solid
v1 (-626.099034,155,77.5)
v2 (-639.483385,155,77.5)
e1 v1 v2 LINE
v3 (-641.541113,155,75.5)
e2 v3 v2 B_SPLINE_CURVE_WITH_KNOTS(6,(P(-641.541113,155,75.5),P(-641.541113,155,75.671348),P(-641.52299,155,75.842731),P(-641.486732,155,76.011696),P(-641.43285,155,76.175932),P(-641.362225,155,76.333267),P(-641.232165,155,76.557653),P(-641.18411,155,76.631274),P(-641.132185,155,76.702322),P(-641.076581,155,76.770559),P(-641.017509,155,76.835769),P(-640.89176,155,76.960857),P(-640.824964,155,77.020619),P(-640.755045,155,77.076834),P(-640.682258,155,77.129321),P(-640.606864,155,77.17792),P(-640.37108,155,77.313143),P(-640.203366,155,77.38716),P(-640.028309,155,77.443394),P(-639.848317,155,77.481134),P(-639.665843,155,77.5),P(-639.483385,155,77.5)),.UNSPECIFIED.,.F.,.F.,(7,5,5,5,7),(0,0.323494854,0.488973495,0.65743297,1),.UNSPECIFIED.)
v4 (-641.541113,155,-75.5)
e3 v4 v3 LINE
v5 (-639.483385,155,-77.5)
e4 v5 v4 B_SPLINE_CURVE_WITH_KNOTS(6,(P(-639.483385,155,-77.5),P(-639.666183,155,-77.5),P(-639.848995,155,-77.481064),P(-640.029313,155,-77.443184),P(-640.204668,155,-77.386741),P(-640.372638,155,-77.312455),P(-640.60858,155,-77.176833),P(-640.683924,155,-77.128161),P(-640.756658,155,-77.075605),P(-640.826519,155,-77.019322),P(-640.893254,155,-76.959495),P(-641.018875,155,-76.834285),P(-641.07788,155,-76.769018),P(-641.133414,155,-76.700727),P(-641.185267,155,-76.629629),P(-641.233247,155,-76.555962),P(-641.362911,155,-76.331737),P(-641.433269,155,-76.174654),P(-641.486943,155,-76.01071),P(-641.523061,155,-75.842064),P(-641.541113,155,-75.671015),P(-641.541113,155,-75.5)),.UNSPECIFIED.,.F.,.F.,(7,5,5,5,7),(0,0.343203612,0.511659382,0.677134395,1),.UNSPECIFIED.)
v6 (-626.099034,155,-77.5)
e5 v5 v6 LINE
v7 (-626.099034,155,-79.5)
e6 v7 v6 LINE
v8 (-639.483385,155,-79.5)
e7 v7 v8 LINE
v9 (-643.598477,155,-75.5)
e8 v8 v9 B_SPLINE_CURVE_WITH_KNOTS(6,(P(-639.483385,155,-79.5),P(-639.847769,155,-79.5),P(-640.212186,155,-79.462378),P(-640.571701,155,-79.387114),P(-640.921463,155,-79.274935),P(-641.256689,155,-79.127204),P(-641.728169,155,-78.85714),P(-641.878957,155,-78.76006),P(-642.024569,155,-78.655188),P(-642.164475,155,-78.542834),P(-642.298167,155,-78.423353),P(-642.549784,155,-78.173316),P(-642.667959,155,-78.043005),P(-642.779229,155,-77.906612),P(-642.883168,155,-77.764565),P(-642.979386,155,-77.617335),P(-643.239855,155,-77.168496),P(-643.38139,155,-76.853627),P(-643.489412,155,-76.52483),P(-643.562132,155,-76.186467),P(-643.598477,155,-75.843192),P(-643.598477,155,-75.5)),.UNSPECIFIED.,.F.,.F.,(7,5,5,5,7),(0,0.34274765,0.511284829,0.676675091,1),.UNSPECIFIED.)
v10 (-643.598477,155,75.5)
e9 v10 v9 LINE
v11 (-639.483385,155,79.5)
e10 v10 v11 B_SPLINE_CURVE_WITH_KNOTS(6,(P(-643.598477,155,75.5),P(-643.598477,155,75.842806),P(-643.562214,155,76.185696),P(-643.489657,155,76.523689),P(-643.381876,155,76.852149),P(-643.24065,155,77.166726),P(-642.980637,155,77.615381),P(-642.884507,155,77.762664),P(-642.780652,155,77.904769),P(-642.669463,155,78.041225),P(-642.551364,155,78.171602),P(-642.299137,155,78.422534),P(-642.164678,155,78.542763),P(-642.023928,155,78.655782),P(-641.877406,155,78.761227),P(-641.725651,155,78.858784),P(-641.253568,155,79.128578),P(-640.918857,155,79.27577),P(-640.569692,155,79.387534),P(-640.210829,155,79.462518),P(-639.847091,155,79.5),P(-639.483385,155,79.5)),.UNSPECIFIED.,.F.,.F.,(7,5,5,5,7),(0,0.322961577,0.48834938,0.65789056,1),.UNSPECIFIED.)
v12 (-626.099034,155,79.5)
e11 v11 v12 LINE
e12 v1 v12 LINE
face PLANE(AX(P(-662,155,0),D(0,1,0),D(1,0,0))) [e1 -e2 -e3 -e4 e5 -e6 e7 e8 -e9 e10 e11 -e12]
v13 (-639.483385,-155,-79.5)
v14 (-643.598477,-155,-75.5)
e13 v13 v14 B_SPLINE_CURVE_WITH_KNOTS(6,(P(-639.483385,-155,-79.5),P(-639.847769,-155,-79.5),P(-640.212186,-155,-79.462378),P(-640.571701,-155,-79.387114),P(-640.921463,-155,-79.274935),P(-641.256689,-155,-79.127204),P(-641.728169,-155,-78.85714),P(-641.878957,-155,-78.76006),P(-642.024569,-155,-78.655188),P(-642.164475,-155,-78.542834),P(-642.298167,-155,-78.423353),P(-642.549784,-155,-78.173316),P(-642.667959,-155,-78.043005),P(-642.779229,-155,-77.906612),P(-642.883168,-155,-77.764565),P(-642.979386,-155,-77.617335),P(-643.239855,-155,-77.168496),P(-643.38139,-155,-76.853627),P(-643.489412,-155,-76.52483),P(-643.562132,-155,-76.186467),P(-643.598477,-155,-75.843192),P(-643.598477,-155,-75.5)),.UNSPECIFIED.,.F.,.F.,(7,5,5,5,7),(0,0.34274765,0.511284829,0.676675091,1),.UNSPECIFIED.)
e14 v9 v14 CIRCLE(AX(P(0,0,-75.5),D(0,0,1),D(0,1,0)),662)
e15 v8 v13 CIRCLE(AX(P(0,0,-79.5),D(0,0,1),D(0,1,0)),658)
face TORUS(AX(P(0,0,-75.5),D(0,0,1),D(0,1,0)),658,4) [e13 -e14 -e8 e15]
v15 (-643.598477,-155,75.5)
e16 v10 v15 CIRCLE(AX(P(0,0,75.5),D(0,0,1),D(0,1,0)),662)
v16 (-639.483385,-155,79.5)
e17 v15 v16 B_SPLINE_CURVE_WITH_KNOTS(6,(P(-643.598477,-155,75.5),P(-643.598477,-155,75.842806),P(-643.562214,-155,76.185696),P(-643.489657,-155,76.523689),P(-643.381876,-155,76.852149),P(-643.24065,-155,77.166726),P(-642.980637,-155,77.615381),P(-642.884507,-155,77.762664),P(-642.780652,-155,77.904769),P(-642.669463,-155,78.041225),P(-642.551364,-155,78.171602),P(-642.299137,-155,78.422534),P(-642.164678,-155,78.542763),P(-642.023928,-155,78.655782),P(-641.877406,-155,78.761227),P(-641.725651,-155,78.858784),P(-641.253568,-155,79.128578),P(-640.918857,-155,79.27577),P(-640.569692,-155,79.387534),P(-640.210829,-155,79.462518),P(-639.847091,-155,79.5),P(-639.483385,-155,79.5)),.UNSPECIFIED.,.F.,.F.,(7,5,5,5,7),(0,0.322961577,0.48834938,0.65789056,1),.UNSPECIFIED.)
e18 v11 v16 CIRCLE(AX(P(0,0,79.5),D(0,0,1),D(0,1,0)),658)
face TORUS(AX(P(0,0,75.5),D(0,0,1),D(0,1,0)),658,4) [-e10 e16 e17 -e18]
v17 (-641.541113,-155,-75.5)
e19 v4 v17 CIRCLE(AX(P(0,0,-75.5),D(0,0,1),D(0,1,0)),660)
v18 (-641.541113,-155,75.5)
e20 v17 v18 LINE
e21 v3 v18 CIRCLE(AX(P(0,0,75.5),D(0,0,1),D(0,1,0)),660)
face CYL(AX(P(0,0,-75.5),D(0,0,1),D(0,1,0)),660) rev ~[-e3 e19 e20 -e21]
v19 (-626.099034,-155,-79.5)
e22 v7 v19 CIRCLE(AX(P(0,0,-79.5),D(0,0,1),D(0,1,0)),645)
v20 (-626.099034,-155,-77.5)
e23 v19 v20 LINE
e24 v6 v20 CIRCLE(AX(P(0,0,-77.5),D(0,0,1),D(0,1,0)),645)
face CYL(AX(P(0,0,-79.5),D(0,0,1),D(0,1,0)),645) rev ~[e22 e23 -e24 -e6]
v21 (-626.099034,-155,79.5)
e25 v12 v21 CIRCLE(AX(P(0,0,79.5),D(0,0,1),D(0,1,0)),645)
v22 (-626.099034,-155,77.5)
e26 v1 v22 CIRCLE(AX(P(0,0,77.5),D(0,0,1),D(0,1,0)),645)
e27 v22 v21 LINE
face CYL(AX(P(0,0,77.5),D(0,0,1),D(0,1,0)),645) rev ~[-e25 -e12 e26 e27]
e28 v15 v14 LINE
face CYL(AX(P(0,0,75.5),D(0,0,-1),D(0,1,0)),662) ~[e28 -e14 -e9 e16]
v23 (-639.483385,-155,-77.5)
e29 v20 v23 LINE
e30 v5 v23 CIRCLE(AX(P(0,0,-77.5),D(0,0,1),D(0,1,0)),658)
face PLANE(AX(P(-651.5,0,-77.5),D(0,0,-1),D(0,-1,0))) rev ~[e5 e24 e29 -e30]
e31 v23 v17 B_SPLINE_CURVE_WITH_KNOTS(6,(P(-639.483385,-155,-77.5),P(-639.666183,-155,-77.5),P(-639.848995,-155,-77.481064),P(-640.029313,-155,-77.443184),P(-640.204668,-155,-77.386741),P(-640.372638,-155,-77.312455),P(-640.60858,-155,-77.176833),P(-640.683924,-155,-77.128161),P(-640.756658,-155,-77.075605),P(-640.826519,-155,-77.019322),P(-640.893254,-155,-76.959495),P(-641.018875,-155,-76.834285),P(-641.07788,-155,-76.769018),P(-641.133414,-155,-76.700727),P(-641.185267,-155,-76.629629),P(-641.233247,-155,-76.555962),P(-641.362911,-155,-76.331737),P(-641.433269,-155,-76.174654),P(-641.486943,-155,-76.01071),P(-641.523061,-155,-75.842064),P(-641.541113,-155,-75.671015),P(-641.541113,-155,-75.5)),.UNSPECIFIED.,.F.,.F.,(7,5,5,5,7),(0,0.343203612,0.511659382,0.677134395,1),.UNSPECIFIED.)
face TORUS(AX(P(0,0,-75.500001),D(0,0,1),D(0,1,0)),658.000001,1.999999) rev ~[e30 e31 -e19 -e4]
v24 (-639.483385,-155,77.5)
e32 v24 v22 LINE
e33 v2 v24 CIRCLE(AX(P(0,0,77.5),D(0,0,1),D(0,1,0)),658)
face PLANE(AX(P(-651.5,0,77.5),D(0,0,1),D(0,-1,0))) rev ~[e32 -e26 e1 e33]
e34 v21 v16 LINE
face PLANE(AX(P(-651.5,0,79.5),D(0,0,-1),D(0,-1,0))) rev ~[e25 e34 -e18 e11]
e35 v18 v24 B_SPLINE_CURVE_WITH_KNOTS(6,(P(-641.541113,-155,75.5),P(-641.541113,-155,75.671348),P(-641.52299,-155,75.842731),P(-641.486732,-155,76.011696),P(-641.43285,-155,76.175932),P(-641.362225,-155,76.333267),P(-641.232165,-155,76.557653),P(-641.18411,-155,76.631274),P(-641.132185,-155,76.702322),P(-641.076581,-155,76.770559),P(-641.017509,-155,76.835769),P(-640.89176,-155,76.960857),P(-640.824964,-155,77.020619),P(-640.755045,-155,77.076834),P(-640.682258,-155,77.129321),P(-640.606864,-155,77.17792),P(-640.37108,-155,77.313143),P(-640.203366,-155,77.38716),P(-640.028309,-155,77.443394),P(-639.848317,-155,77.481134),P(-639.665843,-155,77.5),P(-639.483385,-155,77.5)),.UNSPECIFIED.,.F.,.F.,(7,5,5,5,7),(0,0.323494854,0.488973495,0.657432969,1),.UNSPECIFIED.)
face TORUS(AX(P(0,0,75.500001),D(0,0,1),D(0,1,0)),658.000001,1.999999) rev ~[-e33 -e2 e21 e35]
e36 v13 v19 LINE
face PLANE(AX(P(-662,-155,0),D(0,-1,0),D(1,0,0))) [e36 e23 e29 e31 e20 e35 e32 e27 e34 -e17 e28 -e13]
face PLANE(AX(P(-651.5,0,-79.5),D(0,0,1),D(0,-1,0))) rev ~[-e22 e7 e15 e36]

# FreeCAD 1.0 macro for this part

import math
import FreeCAD as App
import Part
import Sketcher
from FreeCAD import Vector
Q = App.Units.Quantity

doc = App.newDocument("Part")
body = doc.addObject("PartDesign::Body", "Body")

# Sketch on YZ plane
sketch1 = body.newObject("Sketcher::SketchObject", "Sketch")
sketch1.AttachmentSupport = (doc.getObject("YZ_Plane"), [""])
sketch1.MapMode = "FlatFace"
sketch1.addGeometry(Part.LineSegment(Vector(-658, 77.5, 0), Vector(-645, 77.5, 0)), False)
sketch1.addGeometry(Part.LineSegment(Vector(-645, 77.5, 0), Vector(-645, 79.5, 0)), False)
sketch1.addGeometry(Part.LineSegment(Vector(-645, 79.5, 0), Vector(-658, 79.5, 0)), False)
sketch1.addGeometry(Part.ArcOfCircle(Part.Circle(Vector(-658, 75.5, 0), Vector(0, 0, 1), 4), math.radians(90), math.radians(180)), False)
sketch1.addGeometry(Part.LineSegment(Vector(-662, 75.5, 0), Vector(-662, -75.5, 0)), False)
sketch1.addGeometry(Part.ArcOfCircle(Part.Circle(Vector(-658, -75.5, 0), Vector(0, 0, 1), 4), math.radians(-180), math.radians(-90)), False)
sketch1.addGeometry(Part.LineSegment(Vector(-658, -79.5, 0), Vector(-645, -79.5, 0)), False)
sketch1.addGeometry(Part.LineSegment(Vector(-645, -79.5, 0), Vector(-645, -77.5, 0)), False)
sketch1.addGeometry(Part.LineSegment(Vector(-645, -77.5, 0), Vector(-658, -77.5, 0)), False)
sketch1.addGeometry(Part.ArcOfCircle(Part.Circle(Vector(-658, -75.5, 0), Vector(0, 0, 1), 2), math.radians(180), math.radians(270)), False)
sketch1.addGeometry(Part.LineSegment(Vector(-660, -75.5, 0), Vector(-660, 75.5, 0)), False)
sketch1.addGeometry(Part.ArcOfCircle(Part.Circle(Vector(-658, 75.5, 0), Vector(0, 0, 1), 2), math.radians(90), math.radians(180)), False)
sketch1.addConstraint(Sketcher.Constraint("Coincident", 0, 2, 1, 1))
sketch1.addConstraint(Sketcher.Constraint("Coincident", 1, 2, 2, 1))
sketch1.addConstraint(Sketcher.Constraint("Tangent", 2, 2, 3, 1))
sketch1.addConstraint(Sketcher.Constraint("Tangent", 3, 2, 4, 1))
sketch1.addConstraint(Sketcher.Constraint("Tangent", 4, 2, 5, 1))
sketch1.addConstraint(Sketcher.Constraint("Tangent", 5, 2, 6, 1))
sketch1.addConstraint(Sketcher.Constraint("Coincident", 6, 2, 7, 1))
sketch1.addConstraint(Sketcher.Constraint("Coincident", 7, 2, 8, 1))
sketch1.addConstraint(Sketcher.Constraint("Tangent", 8, 2, 9, 2))
sketch1.addConstraint(Sketcher.Constraint("Tangent", 9, 1, 10, 1))
sketch1.addConstraint(Sketcher.Constraint("Tangent", 10, 2, 11, 2))
sketch1.addConstraint(Sketcher.Constraint("Tangent", 11, 1, 0, 1))
sketch1.addConstraint(Sketcher.Constraint("Horizontal", 0))
sketch1.addConstraint(Sketcher.Constraint("Vertical", 1))
sketch1.addConstraint(Sketcher.Constraint("Horizontal", 2))
sketch1.addConstraint(Sketcher.Constraint("Vertical", 4))
sketch1.addConstraint(Sketcher.Constraint("Horizontal", 6))
sketch1.addConstraint(Sketcher.Constraint("Vertical", 7))
sketch1.addConstraint(Sketcher.Constraint("Horizontal", 8))
sketch1.addConstraint(Sketcher.Constraint("Vertical", 10))
sketch1.addConstraint(Sketcher.Constraint("Coincident", 9, 3, 5, 3))
sketch1.addConstraint(Sketcher.Constraint("Coincident", 11, 3, 3, 3))
sketch1.addConstraint(Sketcher.Constraint("Equal", 3, 5))
sketch1.addConstraint(Sketcher.Constraint("Symmetric", 1, 2, 6, 2, -1))
sketch1.addConstraint(Sketcher.Constraint("Radius", 3, Q("4 mm")))
sketch1.addConstraint(Sketcher.Constraint("Radius", 9, Q("1.999999 mm")))
sketch1.addConstraint(Sketcher.Constraint("DistanceX", 0, 1, 0, 2, Q("13 mm")))
sketch1.addConstraint(Sketcher.Constraint("DistanceY", 4, 2, 4, 1, Q("151 mm")))
sketch1.addConstraint(Sketcher.Constraint("DistanceX", 3, 3, -1, 1, Q("658 mm")))

# Sketch on XY plane
sketch2 = body.newObject("Sketcher::SketchObject", "Sketch001")
sketch2.AttachmentSupport = (doc.getObject("XY_Plane"), [""])
sketch2.MapMode = "FlatFace"
sketch2.addGeometry(Part.ArcOfCircle(Part.Circle(Vector(0, 0, 0), Vector(0, 0, 1), 660), math.radians(90), math.radians(270)), False)
sketch2.addConstraint(Sketcher.Constraint("Coincident", 0, 3, -1, 1))
sketch2.addConstraint(Sketcher.Constraint("PointOnObject", 0, 1, -2))
sketch2.addConstraint(Sketcher.Constraint("PointOnObject", 0, 2, -2))
sketch2.addConstraint(Sketcher.Constraint("Radius", 0, Q("660 mm")))
doc.recompute()

additivepipe = body.newObject("PartDesign::AdditivePipe", "AdditivePipe")
additivepipe.Profile = sketch1
additivepipe.Spine = (sketch2, ["Edge1"])

# Sketch on XY plane
sketch3 = body.newObject("Sketcher::SketchObject", "Sketch002")
sketch3.AttachmentSupport = (doc.getObject("XY_Plane"), [""])
sketch3.MapMode = "FlatFace"
sketch3.addGeometry(Part.LineSegment(Vector(-155, 662, 0), Vector(-155, -662, 0)), False)
sketch3.addGeometry(Part.LineSegment(Vector(-155, -662, 0), Vector(155, -662, 0)), False)
sketch3.addGeometry(Part.LineSegment(Vector(155, -662, 0), Vector(155, 662, 0)), False)
sketch3.addGeometry(Part.LineSegment(Vector(155, 662, 0), Vector(-155, 662, 0)), False)
sketch3.addConstraint(Sketcher.Constraint("Coincident", 0, 2, 1, 1))
sketch3.addConstraint(Sketcher.Constraint("Coincident", 1, 2, 2, 1))
sketch3.addConstraint(Sketcher.Constraint("Coincident", 2, 2, 3, 1))
sketch3.addConstraint(Sketcher.Constraint("Coincident", 3, 2, 0, 1))
sketch3.addConstraint(Sketcher.Constraint("Vertical", 0))
sketch3.addConstraint(Sketcher.Constraint("Horizontal", 1))
sketch3.addConstraint(Sketcher.Constraint("Vertical", 2))
sketch3.addConstraint(Sketcher.Constraint("Horizontal", 3))
sketch3.addConstraint(Sketcher.Constraint("Symmetric", 0, 2, 2, 2, -1, 1))
sketch3.addConstraint(Sketcher.Constraint("DistanceX", 1, 1, 1, 2, Q("310 mm")))
sketch3.addConstraint(Sketcher.Constraint("DistanceY", 0, 2, 0, 1, Q("1324 mm")))
pocket1 = body.newObject("PartDesign::Pocket", "Pocket")
pocket1.Profile = sketch3
pocket1.Length = 200
pocket1.Midplane = True

# Sketch on XY plane
sketch4 = body.newObject("Sketcher::SketchObject", "Sketch003")
sketch4.AttachmentSupport = (doc.getObject("XY_Plane"), [""])
sketch4.MapMode = "FlatFace"
sketch4.addGeometry(Part.LineSegment(Vector(-662, 644, 0), Vector(-662, 155, 0)), False)
sketch4.addGeometry(Part.LineSegment(Vector(-662, 155, 0), Vector(662, 155, 0)), False)
sketch4.addGeometry(Part.LineSegment(Vector(662, 155, 0), Vector(662, 644, 0)), False)
sketch4.addGeometry(Part.LineSegment(Vector(662, 644, 0), Vector(-662, 644, 0)), False)
sketch4.addGeometry(Part.LineSegment(Vector(-662, -155, 0), Vector(-662, -644, 0)), False)
sketch4.addGeometry(Part.LineSegment(Vector(-662, -644, 0), Vector(662, -644, 0)), False)
sketch4.addGeometry(Part.LineSegment(Vector(662, -644, 0), Vector(662, -155, 0)), False)
sketch4.addGeometry(Part.LineSegment(Vector(662, -155, 0), Vector(-662, -155, 0)), False)
sketch4.addConstraint(Sketcher.Constraint("Coincident", 0, 2, 1, 1))
sketch4.addConstraint(Sketcher.Constraint("Coincident", 1, 2, 2, 1))
sketch4.addConstraint(Sketcher.Constraint("Coincident", 2, 2, 3, 1))
sketch4.addConstraint(Sketcher.Constraint("Coincident", 3, 2, 0, 1))
sketch4.addConstraint(Sketcher.Constraint("Coincident", 4, 2, 5, 1))
sketch4.addConstraint(Sketcher.Constraint("Coincident", 5, 2, 6, 1))
sketch4.addConstraint(Sketcher.Constraint("Coincident", 6, 2, 7, 1))
sketch4.addConstraint(Sketcher.Constraint("Coincident", 7, 2, 4, 1))
sketch4.addConstraint(Sketcher.Constraint("Vertical", 0))
sketch4.addConstraint(Sketcher.Constraint("Horizontal", 1))
sketch4.addConstraint(Sketcher.Constraint("Vertical", 2))
sketch4.addConstraint(Sketcher.Constraint("Horizontal", 3))
sketch4.addConstraint(Sketcher.Constraint("Vertical", 4))
sketch4.addConstraint(Sketcher.Constraint("Horizontal", 5))
sketch4.addConstraint(Sketcher.Constraint("Vertical", 6))
sketch4.addConstraint(Sketcher.Constraint("Horizontal", 7))
sketch4.addConstraint(Sketcher.Constraint("Symmetric", 2, 2, 4, 2, -1, 1))
sketch4.addConstraint(Sketcher.Constraint("Symmetric", 0, 2, 6, 2, -1, 1))
sketch4.addConstraint(Sketcher.Constraint("Vertical", 3, 2, 4, 2))
sketch4.addConstraint(Sketcher.Constraint("DistanceX", 1, 1, 1, 2, Q("1324 mm")))
sketch4.addConstraint(Sketcher.Constraint("DistanceY", -1, 1, 0, 2, Q("155 mm")))
sketch4.addConstraint(Sketcher.Constraint("DistanceY", 0, 2, 0, 1, Q("488.598477 mm")))
pocket2 = body.newObject("PartDesign::Pocket", "Pocket001")
pocket2.Profile = sketch4
pocket2.Length = 200
pocket2.Midplane = True

doc.recompute()
